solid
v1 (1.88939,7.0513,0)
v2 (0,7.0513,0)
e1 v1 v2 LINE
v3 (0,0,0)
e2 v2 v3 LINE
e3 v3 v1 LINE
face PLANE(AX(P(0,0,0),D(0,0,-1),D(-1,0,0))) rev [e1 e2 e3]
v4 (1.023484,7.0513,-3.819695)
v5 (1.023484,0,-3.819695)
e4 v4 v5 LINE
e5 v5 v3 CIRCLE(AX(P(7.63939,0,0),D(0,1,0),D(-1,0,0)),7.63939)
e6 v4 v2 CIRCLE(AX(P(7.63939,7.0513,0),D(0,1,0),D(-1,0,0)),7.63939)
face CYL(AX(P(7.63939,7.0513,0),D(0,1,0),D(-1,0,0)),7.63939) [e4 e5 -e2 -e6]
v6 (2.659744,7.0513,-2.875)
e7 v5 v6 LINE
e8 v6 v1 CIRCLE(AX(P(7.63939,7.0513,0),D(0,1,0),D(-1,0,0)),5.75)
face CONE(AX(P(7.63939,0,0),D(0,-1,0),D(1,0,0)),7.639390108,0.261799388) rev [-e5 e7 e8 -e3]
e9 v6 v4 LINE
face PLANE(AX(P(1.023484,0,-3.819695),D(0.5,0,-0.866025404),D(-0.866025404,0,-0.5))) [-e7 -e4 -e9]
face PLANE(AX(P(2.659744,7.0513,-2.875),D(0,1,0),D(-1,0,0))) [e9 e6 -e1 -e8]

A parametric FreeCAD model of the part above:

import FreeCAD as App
import Part
import Sketcher
Q = App.Units.Quantity


def add_polygon(sketch, points):
    """Adds a closed chain of lines whose ends are joined by coincident constraints."""
    first, n = sketch.GeometryCount, len(points)
    for a, b in zip(points, points[1:] + points[:1]):
        sketch.addGeometry(Part.LineSegment(App.Vector(*a, 0), App.Vector(*b, 0)), False)
    for i in range(n):
        sketch.addConstraint(Sketcher.Constraint("Coincident", first + i, 2, first + (i + 1) % n, 1))

doc = App.newDocument("Part")
body = doc.addObject("PartDesign::Body", "Body")

# Sketch on XY plane
sketch1 = doc.addObject("Sketcher::SketchObject", "Sketch")
body.addObject(sketch1)
sketch1.AttachmentSupport = (doc.XY_Plane, [""])
sketch1.MapMode = "FlatFace"
add_polygon(sketch1, [(0, 0), (1.9, 7.1), (0, 7.1)])  # lines 0-2
sketch1.addGeometry(Part.LineSegment(App.Vector(7.6, 7.1, 0), App.Vector(7.6, 0, 0)), True)  # axis
sketch1.addConstraint([
    Sketcher.Constraint("Horizontal", 1),
    Sketcher.Constraint("Vertical", 2),
    Sketcher.Constraint("Vertical", 3),
    Sketcher.Constraint("Coincident", 2, 2, -1, 1),
    Sketcher.Constraint("PointOnObject", 3, 2, -1),
    Sketcher.Constraint("Horizontal", 1, 2, 3, 1),
    Sketcher.Constraint("Angle", 0, Q("75 deg")),
    Sketcher.Constraint("DistanceX", 0, 2, 3, 1, 5.75),
    Sketcher.Constraint("DistanceY", 2, 2, 2, 1, 7.0513),
])
revolution = doc.addObject("PartDesign::Revolution", "Revolution")
body.addObject(revolution)
revolution.Profile = sketch1
revolution.ReferenceAxis = (sketch1, ["Axis0"])
revolution.Angle = 30

doc.recompute()
